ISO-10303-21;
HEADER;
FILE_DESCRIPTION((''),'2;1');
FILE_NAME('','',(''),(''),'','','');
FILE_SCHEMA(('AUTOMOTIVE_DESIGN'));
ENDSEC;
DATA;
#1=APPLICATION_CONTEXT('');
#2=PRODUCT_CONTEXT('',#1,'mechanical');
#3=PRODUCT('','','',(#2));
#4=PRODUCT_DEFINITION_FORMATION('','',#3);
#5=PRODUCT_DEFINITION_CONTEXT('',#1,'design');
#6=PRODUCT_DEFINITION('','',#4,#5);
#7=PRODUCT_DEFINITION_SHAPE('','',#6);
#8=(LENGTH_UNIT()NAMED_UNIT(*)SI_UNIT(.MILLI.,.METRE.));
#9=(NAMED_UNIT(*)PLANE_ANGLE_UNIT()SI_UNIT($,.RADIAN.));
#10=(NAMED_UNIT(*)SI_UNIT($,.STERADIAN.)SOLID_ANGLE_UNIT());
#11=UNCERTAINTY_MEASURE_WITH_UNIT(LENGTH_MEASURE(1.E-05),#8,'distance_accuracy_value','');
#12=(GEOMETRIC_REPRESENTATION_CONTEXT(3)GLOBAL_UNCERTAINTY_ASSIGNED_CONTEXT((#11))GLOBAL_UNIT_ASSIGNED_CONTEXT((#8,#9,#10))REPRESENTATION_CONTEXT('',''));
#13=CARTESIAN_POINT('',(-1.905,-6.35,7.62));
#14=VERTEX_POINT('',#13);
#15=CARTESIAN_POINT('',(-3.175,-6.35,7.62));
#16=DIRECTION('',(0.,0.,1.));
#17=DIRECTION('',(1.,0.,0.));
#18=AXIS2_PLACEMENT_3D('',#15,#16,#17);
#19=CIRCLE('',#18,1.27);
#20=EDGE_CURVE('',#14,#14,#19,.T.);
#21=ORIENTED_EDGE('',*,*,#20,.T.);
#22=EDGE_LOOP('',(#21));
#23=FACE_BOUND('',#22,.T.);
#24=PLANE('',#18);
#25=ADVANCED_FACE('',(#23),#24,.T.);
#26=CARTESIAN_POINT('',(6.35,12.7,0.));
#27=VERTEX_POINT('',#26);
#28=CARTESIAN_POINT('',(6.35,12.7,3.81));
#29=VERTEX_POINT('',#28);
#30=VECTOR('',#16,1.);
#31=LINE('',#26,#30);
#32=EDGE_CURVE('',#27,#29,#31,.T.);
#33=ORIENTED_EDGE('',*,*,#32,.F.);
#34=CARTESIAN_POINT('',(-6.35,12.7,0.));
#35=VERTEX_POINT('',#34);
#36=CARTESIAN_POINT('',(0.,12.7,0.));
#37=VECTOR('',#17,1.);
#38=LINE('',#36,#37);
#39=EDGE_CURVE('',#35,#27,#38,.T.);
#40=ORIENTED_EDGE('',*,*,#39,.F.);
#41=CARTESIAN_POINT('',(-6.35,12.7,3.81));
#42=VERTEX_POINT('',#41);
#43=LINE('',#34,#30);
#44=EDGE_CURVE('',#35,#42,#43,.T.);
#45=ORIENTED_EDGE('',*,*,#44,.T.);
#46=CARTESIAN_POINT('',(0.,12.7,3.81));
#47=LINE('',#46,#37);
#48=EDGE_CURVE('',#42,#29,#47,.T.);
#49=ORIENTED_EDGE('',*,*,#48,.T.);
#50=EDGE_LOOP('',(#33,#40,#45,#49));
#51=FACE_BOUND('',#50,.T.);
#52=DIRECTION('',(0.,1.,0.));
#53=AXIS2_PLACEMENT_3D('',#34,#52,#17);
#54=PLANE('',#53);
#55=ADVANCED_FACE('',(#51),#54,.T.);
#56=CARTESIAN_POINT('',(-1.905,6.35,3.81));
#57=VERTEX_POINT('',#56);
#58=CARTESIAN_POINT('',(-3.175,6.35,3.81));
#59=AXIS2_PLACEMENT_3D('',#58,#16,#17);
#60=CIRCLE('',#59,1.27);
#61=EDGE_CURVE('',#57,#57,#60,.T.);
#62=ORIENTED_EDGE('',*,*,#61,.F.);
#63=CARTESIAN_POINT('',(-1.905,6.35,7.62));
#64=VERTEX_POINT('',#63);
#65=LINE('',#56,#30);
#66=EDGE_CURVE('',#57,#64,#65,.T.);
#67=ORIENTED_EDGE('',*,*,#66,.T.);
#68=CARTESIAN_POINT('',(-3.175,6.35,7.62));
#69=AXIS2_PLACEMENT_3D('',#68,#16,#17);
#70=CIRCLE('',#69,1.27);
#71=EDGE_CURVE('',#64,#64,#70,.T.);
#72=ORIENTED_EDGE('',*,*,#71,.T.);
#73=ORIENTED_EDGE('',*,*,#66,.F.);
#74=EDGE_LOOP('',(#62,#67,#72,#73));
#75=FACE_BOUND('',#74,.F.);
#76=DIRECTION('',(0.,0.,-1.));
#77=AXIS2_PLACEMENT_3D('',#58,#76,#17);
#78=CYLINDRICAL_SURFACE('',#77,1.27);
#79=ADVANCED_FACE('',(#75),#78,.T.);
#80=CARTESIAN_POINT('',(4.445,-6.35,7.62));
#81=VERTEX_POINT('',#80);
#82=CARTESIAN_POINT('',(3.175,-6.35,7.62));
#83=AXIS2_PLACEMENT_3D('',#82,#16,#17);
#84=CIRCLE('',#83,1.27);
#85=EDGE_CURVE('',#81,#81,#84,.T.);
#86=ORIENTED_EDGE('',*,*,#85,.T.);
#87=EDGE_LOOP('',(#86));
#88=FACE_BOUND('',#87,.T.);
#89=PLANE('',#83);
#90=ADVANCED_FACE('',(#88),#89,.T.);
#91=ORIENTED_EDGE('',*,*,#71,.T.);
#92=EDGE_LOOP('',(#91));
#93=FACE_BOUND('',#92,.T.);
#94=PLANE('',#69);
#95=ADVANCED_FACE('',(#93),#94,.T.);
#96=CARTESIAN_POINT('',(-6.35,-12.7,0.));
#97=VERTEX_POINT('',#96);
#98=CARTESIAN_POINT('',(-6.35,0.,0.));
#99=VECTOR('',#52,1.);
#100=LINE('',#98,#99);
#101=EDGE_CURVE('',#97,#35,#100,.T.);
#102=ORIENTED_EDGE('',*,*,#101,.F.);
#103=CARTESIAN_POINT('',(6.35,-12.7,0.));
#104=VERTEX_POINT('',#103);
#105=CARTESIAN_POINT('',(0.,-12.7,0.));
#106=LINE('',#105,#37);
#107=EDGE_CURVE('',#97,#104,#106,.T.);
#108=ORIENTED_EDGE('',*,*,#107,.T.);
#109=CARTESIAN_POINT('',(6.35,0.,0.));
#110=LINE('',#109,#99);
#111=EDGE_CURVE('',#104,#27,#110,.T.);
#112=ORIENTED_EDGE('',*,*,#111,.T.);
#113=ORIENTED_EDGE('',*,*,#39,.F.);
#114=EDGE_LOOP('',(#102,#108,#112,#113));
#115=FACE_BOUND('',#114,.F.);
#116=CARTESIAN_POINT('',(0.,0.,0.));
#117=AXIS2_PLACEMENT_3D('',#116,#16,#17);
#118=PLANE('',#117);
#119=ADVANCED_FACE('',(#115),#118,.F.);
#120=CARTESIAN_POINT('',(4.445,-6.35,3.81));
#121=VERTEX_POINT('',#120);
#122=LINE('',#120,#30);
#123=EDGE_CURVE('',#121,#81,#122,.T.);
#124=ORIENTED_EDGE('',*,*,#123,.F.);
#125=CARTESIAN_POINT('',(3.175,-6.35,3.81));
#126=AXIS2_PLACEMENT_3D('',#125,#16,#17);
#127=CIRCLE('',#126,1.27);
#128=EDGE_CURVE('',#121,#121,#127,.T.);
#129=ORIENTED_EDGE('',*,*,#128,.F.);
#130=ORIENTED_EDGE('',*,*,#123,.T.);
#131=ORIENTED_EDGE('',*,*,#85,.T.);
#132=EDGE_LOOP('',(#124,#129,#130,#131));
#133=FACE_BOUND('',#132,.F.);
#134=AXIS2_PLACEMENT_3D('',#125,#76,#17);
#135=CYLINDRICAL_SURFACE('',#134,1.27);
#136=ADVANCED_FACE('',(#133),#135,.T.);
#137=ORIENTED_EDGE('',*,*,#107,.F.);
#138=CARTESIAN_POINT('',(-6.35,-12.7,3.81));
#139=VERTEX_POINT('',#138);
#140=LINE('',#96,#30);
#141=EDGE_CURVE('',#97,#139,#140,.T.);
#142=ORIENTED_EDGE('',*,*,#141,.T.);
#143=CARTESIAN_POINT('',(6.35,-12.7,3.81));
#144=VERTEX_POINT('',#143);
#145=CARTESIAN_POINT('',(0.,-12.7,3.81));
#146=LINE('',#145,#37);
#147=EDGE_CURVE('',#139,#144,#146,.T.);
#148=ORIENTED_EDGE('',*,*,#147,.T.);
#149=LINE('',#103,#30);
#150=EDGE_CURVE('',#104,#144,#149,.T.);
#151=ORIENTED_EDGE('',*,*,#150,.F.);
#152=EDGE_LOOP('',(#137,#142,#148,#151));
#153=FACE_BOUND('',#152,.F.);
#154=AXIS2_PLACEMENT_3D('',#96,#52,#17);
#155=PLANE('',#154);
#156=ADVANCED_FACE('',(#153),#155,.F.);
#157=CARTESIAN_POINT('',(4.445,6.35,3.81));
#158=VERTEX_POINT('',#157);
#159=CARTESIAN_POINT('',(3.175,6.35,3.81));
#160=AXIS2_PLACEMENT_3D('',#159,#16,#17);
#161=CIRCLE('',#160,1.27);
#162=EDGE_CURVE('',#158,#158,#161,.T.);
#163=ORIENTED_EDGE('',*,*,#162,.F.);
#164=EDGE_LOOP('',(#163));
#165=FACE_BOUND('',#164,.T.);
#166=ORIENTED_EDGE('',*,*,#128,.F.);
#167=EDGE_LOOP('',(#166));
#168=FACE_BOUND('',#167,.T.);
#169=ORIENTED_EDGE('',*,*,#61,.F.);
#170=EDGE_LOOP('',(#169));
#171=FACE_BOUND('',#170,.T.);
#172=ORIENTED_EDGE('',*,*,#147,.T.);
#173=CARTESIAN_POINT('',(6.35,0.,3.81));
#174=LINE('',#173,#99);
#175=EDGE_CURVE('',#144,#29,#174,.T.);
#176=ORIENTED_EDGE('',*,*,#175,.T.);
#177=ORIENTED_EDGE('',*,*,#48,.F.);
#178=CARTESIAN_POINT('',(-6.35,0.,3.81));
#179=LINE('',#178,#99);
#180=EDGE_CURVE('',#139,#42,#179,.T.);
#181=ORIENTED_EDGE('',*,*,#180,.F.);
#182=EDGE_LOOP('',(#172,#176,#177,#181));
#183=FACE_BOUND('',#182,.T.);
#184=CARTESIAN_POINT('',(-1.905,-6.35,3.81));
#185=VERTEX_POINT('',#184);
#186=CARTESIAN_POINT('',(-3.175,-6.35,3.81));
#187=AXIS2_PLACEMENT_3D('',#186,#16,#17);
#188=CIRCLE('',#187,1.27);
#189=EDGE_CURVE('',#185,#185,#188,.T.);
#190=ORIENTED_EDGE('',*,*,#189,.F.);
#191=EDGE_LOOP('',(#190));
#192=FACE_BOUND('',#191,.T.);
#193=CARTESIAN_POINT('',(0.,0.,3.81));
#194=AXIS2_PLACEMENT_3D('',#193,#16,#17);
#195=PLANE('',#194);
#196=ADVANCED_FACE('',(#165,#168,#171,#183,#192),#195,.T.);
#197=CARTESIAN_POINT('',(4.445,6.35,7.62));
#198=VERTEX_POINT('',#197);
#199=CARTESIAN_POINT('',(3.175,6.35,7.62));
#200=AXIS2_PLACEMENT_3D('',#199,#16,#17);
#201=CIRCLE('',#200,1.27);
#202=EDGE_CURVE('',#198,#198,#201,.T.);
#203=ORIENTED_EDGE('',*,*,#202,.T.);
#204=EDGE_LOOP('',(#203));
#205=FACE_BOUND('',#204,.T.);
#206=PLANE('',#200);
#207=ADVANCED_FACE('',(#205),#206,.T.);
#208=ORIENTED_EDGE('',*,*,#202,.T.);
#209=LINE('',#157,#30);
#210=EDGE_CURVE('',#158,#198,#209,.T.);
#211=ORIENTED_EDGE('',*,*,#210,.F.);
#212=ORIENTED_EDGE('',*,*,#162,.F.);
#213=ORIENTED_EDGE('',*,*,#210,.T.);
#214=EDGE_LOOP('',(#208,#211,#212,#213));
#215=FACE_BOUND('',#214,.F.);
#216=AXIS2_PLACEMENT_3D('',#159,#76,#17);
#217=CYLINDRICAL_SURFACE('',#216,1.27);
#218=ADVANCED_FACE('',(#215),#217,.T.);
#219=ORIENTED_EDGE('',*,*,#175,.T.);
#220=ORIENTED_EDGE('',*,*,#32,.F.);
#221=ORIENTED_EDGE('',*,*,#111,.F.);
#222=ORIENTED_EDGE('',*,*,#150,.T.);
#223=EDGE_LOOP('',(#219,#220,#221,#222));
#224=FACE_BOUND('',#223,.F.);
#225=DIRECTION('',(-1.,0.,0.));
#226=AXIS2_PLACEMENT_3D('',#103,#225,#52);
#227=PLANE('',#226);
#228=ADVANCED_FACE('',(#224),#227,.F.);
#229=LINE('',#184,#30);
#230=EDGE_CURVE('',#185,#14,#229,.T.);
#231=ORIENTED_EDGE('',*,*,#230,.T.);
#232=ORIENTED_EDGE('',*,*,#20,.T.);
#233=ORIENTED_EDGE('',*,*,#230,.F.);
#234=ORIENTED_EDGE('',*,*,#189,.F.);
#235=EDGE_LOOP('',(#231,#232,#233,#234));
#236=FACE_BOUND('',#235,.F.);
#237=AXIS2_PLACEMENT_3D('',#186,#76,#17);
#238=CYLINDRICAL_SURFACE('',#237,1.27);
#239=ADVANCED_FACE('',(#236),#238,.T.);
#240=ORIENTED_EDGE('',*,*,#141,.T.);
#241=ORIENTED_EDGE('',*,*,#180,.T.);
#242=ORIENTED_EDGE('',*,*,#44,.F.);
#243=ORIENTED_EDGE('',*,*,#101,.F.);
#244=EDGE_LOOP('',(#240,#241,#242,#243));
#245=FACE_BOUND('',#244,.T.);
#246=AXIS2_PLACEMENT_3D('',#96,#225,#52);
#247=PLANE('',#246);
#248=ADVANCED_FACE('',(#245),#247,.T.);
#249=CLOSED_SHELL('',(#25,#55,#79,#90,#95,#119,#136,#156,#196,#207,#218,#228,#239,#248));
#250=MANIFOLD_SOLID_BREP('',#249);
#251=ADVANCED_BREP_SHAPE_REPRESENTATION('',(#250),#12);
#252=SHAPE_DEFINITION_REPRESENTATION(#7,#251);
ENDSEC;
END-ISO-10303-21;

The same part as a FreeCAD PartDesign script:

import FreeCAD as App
import Part
import Sketcher
from FreeCAD import Vector
Q = App.Units.Quantity

doc = App.newDocument("Part")
body = doc.addObject("PartDesign::Body", "Body")

# Sketch on XY plane
sketch1 = doc.addObject("Sketcher::SketchObject", "Sketch")
body.addObject(sketch1)
sketch1.AttachmentSupport = (doc.XY_Plane, [""])
sketch1.MapMode = "FlatFace"
sketch1.addGeometry(Part.LineSegment(Vector(-6.35, 12.7, 0), Vector(-6.35, -12.7, 0)), False)
sketch1.addGeometry(Part.LineSegment(Vector(-6.35, -12.7, 0), Vector(6.35, -12.7, 0)), False)
sketch1.addGeometry(Part.LineSegment(Vector(6.35, -12.7, 0), Vector(6.35, 12.7, 0)), False)
sketch1.addGeometry(Part.LineSegment(Vector(6.35, 12.7, 0), Vector(-6.35, 12.7, 0)), False)
sketch1.addConstraint(Sketcher.Constraint("Coincident", 0, 2, 1, 1))
sketch1.addConstraint(Sketcher.Constraint("Coincident", 1, 2, 2, 1))
sketch1.addConstraint(Sketcher.Constraint("Coincident", 2, 2, 3, 1))
sketch1.addConstraint(Sketcher.Constraint("Coincident", 3, 2, 0, 1))
sketch1.addConstraint(Sketcher.Constraint("Vertical", 0))
sketch1.addConstraint(Sketcher.Constraint("Horizontal", 1))
sketch1.addConstraint(Sketcher.Constraint("Vertical", 2))
sketch1.addConstraint(Sketcher.Constraint("Horizontal", 3))
sketch1.addConstraint(Sketcher.Constraint("Symmetric", 0, 2, 2, 2, -1, 1))
sketch1.addConstraint(Sketcher.Constraint("DistanceY", 0, 2, 0, 1, Q("1 in")))
sketch1.addConstraint(Sketcher.Constraint("DistanceX", 1, 1, 1, 2, Q("0.5 in")))
pad1 = doc.addObject("PartDesign::Pad", "Pad")
body.addObject(pad1)
pad1.Profile = sketch1
pad1.Length = Q("0.15 in")

# Sketch on XY plane
sketch2 = doc.addObject("Sketcher::SketchObject", "Sketch001")
body.addObject(sketch2)
sketch2.AttachmentSupport = (doc.XY_Plane, [""])
sketch2.MapMode = "FlatFace"
sketch2.AttachmentOffset = App.Placement(Vector(0, 0, 0.15 * 25.4), App.Rotation())
sketch2.addGeometry(Part.Circle(Vector(-3.175, 6.35, 0), Vector(0, 0, 1), 1.27), False)
sketch2.addGeometry(Part.Circle(Vector(3.175, 6.35, 0), Vector(0, 0, 1), 1.27), False)
sketch2.addGeometry(Part.Circle(Vector(3.175, -6.35, 0), Vector(0, 0, 1), 1.27), False)
sketch2.addGeometry(Part.Circle(Vector(-3.175, -6.35, 0), Vector(0, 0, 1), 1.27), False)
sketch2.addConstraint(Sketcher.Constraint("Equal", 0, 1))
sketch2.addConstraint(Sketcher.Constraint("Equal", 1, 2))
sketch2.addConstraint(Sketcher.Constraint("Equal", 2, 3))
sketch2.addConstraint(Sketcher.Constraint("Symmetric", 0, 3, 2, 3, -1, 1))
sketch2.addConstraint(Sketcher.Constraint("Symmetric", 1, 3, 3, 3, -1, 1))
sketch2.addConstraint(Sketcher.Constraint("Symmetric", 0, 3, 1, 3, -2))
sketch2.addConstraint(Sketcher.Constraint("Diameter", 0, Q("0.1 in")))
sketch2.addConstraint(Sketcher.Constraint("DistanceY", 2, 3, 1, 3, Q("0.5 in")))
sketch2.addConstraint(Sketcher.Constraint("DistanceX", 0, 3, 1, 3, Q("0.25 in")))
pad2 = doc.addObject("PartDesign::Pad", "Pad001")
body.addObject(pad2)
pad2.Profile = sketch2
pad2.Length = Q("0.15 in")

doc.recompute()
